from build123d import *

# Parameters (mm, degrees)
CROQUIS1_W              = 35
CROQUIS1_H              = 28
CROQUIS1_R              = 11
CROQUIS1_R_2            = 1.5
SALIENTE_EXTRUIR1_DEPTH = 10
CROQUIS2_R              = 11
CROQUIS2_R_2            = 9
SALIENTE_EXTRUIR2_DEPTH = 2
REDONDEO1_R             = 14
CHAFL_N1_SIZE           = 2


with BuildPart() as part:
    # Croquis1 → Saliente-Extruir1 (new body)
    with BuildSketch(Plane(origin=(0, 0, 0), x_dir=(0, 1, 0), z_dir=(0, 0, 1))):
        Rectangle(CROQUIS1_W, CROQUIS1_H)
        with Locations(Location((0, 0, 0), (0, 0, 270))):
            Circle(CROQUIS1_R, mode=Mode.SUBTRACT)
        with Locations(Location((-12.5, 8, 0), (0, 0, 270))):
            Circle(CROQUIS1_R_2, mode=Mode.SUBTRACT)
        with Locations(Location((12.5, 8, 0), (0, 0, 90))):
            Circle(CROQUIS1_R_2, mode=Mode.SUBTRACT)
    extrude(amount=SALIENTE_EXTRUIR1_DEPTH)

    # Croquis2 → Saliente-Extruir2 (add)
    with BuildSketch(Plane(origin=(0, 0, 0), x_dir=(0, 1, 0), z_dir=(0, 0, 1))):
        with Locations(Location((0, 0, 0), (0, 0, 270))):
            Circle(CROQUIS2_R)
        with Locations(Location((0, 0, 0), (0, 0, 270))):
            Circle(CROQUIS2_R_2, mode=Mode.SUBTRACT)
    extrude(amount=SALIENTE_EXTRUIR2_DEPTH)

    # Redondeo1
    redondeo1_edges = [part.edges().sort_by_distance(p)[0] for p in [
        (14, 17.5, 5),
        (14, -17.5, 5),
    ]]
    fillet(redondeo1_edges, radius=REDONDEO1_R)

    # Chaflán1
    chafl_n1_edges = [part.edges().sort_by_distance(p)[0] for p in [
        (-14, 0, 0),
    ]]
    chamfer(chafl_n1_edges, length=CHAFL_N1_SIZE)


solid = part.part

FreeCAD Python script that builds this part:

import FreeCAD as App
import Part
import Sketcher
from FreeCAD import Vector


def edges_at(feature, points):
    """Names of the edges that pass closest to the given points."""
    edges = feature.Shape.Edges
    near = lambda p: min(range(len(edges)), key=lambda i: edges[i].distToShape(Part.Vertex(*p))[0])
    return sorted({f"Edge{near(p) + 1}" for p in points})


def add_polygon(sketch, points):
    """Adds a closed chain of lines whose ends are joined by coincident constraints."""
    first, n = sketch.GeometryCount, len(points)
    for a, b in zip(points, points[1:] + points[:1]):
        sketch.addGeometry(Part.LineSegment(App.Vector(*a, 0), App.Vector(*b, 0)), False)
    for i in range(n):
        sketch.addConstraint(Sketcher.Constraint("Coincident", first + i, 2, first + (i + 1) % n, 1))

doc = App.newDocument("Part")
body = doc.addObject("PartDesign::Body", "Body")

sketch1 = doc.addObject("Sketcher::SketchObject", "Sketch")
body.addObject(sketch1)
sketch1.AttachmentSupport = (doc.XY_Plane, [""])
sketch1.MapMode = "FlatFace"
add_polygon(sketch1, [(-14, -17.5), (14, -17.5), (14, 17.5), (-14, 17.5)])
sketch1.addGeometry(Part.Circle(Vector(-8, -12.5, 0), Vector(0, 0, 1), 1.5), False)
sketch1.addGeometry(Part.Circle(Vector(0, 0, 0), Vector(0, 0, 1), 11), False)
sketch1.addGeometry(Part.Circle(Vector(-8, 12.5, 0), Vector(0, 0, 1), 1.5), False)
sketch1.addConstraint([
    Sketcher.Constraint("Horizontal", 0),
    Sketcher.Constraint("Vertical", 1),
    Sketcher.Constraint("Horizontal", 2),
    Sketcher.Constraint("Vertical", 3),
    Sketcher.Constraint("Coincident", 5, 3, -1, 1),
    Sketcher.Constraint("Equal", 4, 6),
    Sketcher.Constraint("Symmetric", 0, 2, 2, 2, -1, 1),
    Sketcher.Constraint("Symmetric", 4, 3, 6, 3, -1),
    Sketcher.Constraint("Diameter", 4, 3.0),
    Sketcher.Constraint("Diameter", 5, 22.0),
    Sketcher.Constraint("DistanceX", 0, 1, 0, 2, 28.0),
    Sketcher.Constraint("DistanceY", 1, 1, 1, 2, 35.0),
    Sketcher.Constraint("DistanceX", 4, 3, -1, 1, 8.0),
    Sketcher.Constraint("DistanceY", 4, 3, 6, 3, 25.0),
])
pad1 = doc.addObject("PartDesign::Pad", "Pad")
body.addObject(pad1)
pad1.Profile = sketch1
pad1.Length = 10

sketch2 = doc.addObject("Sketcher::SketchObject", "Sketch001")
body.addObject(sketch2)
sketch2.AttachmentSupport = (doc.XY_Plane, [""])
sketch2.MapMode = "FlatFace"
sketch2.addGeometry([
    Part.Circle(Vector(0, 0, 0), Vector(0, 0, 1), 11),
    Part.Circle(Vector(0, 0, 0), Vector(0, 0, 1), 9),
], False)
sketch2.addConstraint([
    Sketcher.Constraint("Coincident", 0, 3, -1, 1),
    Sketcher.Constraint("Coincident", 1, 3, -1, 1),
    Sketcher.Constraint("Diameter", 0, 22.0),
    Sketcher.Constraint("Diameter", 1, 18.0),
])
pad2 = doc.addObject("PartDesign::Pad", "Pad001")
body.addObject(pad2)
pad2.Profile = sketch2
pad2.Length = 2
doc.recompute()

fillet = doc.addObject("PartDesign::Fillet", "Fillet")
body.addObject(fillet)
fillet.Base = (pad2, edges_at(pad2, [(14, 17.5, 5), (14, -17.5, 5)]))
fillet.Radius = 14
doc.recompute()

chamfer = doc.addObject("PartDesign::Chamfer", "Chamfer")
body.addObject(chamfer)
chamfer.Base = (fillet, edges_at(fillet, [(-14, 0, 0)]))
chamfer.Size = 2

doc.recompute()
